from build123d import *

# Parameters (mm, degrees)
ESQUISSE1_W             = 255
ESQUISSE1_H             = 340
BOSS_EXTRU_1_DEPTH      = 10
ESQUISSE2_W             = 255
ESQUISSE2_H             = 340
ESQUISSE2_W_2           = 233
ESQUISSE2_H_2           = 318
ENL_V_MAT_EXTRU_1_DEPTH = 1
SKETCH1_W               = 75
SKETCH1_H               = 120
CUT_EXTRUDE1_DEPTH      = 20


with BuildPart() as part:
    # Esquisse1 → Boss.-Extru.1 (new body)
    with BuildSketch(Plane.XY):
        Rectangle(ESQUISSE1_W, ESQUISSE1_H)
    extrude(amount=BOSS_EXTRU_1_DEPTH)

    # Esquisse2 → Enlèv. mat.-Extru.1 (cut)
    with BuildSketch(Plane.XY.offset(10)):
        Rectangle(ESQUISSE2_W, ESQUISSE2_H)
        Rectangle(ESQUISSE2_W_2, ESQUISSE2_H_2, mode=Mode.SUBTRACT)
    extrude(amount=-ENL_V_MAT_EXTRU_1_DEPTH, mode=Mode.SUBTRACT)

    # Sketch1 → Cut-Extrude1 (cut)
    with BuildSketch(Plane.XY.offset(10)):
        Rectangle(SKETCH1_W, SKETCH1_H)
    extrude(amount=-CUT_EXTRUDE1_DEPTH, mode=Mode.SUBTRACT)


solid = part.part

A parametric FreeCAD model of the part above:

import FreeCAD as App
import Part
import Sketcher

doc = App.newDocument("Part")
params = doc.addObject("Spreadsheet::Sheet", "Params")
for row, (alias, value) in enumerate([
    ("sketch1_width", "255 mm"),
    ("sketch1_height", "340 mm"),
    ("pad1_length", "10 mm"),
    ("sketch2_width", "255 mm"),
    ("sketch2_width2", "233 mm"),
    ("sketch2_height", "340 mm"),
    ("sketch2_height2", "318 mm"),
    ("pocket1_length", "1 mm"),
    ("sketch3_width", "75 mm"),
    ("sketch3_height", "120 mm"),
    ("pocket2_length", "20 mm"),
], start=1):
    params.set(f"A{row}", alias)
    params.set(f"B{row}", "=" + value)
    params.setAlias(f"B{row}", alias)

body = doc.addObject("PartDesign::Body", "Body")

sketch1 = body.newObject("Sketcher::SketchObject", "Sketch")
sketch1.AttachmentSupport = (doc.getObject("XY_Plane"), [""])
sketch1.MapMode = "FlatFace"
sketch1.addGeometry([
    Part.LineSegment(App.Vector(-128, 170, 0), App.Vector(-128, -170, 0)),
    Part.LineSegment(App.Vector(-128, -170, 0), App.Vector(128, -170, 0)),
    Part.LineSegment(App.Vector(128, -170, 0), App.Vector(128, 170, 0)),
    Part.LineSegment(App.Vector(128, 170, 0), App.Vector(-128, 170, 0)),
], False)
sketch1.addConstraint([
    Sketcher.Constraint("Coincident", 0, 2, 1, 1),
    Sketcher.Constraint("Coincident", 1, 2, 2, 1),
    Sketcher.Constraint("Coincident", 2, 2, 3, 1),
    Sketcher.Constraint("Coincident", 3, 2, 0, 1),
    Sketcher.Constraint("Vertical", 0),
    Sketcher.Constraint("Horizontal", 1),
    Sketcher.Constraint("Vertical", 2),
    Sketcher.Constraint("Horizontal", 3),
    Sketcher.Constraint("Symmetric", 0, 2, 2, 2, -1, 1),
    Sketcher.Constraint("DistanceX", 1, 1, 1, 2, 255.0),
    Sketcher.Constraint("DistanceY", 0, 2, 0, 1, 340.0),
])
sketch1.setExpression("Constraints[9]", "Params.sketch1_width")
sketch1.setExpression("Constraints[10]", "Params.sketch1_height")
pad1 = body.newObject("PartDesign::Pad", "Pad")
pad1.Profile = sketch1
pad1.setExpression("Length", "Params.pad1_length")

sketch2 = body.newObject("Sketcher::SketchObject", "Sketch001")
sketch2.AttachmentSupport = (doc.getObject("XY_Plane"), [""])
sketch2.MapMode = "FlatFace"
sketch2.AttachmentOffset = App.Placement(App.Vector(0, 0, 10), App.Rotation())
sketch2.addGeometry([
    Part.LineSegment(App.Vector(-128, 170, 0), App.Vector(-128, -170, 0)),
    Part.LineSegment(App.Vector(-128, -170, 0), App.Vector(128, -170, 0)),
    Part.LineSegment(App.Vector(128, -170, 0), App.Vector(128, 170, 0)),
    Part.LineSegment(App.Vector(128, 170, 0), App.Vector(-128, 170, 0)),
    Part.LineSegment(App.Vector(116, -159, 0), App.Vector(-116, -159, 0)),
    Part.LineSegment(App.Vector(-116, -159, 0), App.Vector(-116, 159, 0)),
    Part.LineSegment(App.Vector(-116, 159, 0), App.Vector(116, 159, 0)),
    Part.LineSegment(App.Vector(116, 159, 0), App.Vector(116, -159, 0)),
], False)
sketch2.addConstraint([
    Sketcher.Constraint("Coincident", 0, 2, 1, 1),
    Sketcher.Constraint("Coincident", 1, 2, 2, 1),
    Sketcher.Constraint("Coincident", 2, 2, 3, 1),
    Sketcher.Constraint("Coincident", 3, 2, 0, 1),
    Sketcher.Constraint("Coincident", 4, 2, 5, 1),
    Sketcher.Constraint("Coincident", 5, 2, 6, 1),
    Sketcher.Constraint("Coincident", 6, 2, 7, 1),
    Sketcher.Constraint("Coincident", 7, 2, 4, 1),
    Sketcher.Constraint("Vertical", 0),
    Sketcher.Constraint("Horizontal", 1),
    Sketcher.Constraint("Vertical", 2),
    Sketcher.Constraint("Horizontal", 3),
    Sketcher.Constraint("Horizontal", 4),
    Sketcher.Constraint("Vertical", 5),
    Sketcher.Constraint("Horizontal", 6),
    Sketcher.Constraint("Vertical", 7),
    Sketcher.Constraint("Symmetric", 0, 2, 2, 2, -1, 1),
    Sketcher.Constraint("Symmetric", 4, 2, 6, 2, -1, 1),
    Sketcher.Constraint("DistanceX", 1, 1, 1, 2, 255.0),
    Sketcher.Constraint("DistanceX", 4, 2, 4, 1, 233.0),
    Sketcher.Constraint("DistanceY", 0, 2, 0, 1, 340.0),
    Sketcher.Constraint("DistanceY", 5, 1, 5, 2, 318.0),
])
sketch2.setExpression("Constraints[18]", "Params.sketch2_width")
sketch2.setExpression("Constraints[19]", "Params.sketch2_width2")
sketch2.setExpression("Constraints[20]", "Params.sketch2_height")
sketch2.setExpression("Constraints[21]", "Params.sketch2_height2")
pocket1 = body.newObject("PartDesign::Pocket", "Pocket")
pocket1.Profile = sketch2
pocket1.setExpression("Length", "Params.pocket1_length")

sketch3 = body.newObject("Sketcher::SketchObject", "Sketch002")
sketch3.AttachmentSupport = (doc.getObject("XY_Plane"), [""])
sketch3.MapMode = "FlatFace"
sketch3.AttachmentOffset = App.Placement(App.Vector(0, 0, 10), App.Rotation())
sketch3.addGeometry([
    Part.LineSegment(App.Vector(-38, 60, 0), App.Vector(-38, -60, 0)),
    Part.LineSegment(App.Vector(-38, -60, 0), App.Vector(38, -60, 0)),
    Part.LineSegment(App.Vector(38, -60, 0), App.Vector(38, 60, 0)),
    Part.LineSegment(App.Vector(38, 60, 0), App.Vector(-38, 60, 0)),
], False)
sketch3.addConstraint([
    Sketcher.Constraint("Coincident", 0, 2, 1, 1),
    Sketcher.Constraint("Coincident", 1, 2, 2, 1),
    Sketcher.Constraint("Coincident", 2, 2, 3, 1),
    Sketcher.Constraint("Coincident", 3, 2, 0, 1),
    Sketcher.Constraint("Vertical", 0),
    Sketcher.Constraint("Horizontal", 1),
    Sketcher.Constraint("Vertical", 2),
    Sketcher.Constraint("Horizontal", 3),
    Sketcher.Constraint("Symmetric", 0, 2, 2, 2, -1, 1),
    Sketcher.Constraint("DistanceX", 1, 1, 1, 2, 75.0),
    Sketcher.Constraint("DistanceY", 0, 2, 0, 1, 120.0),
])
sketch3.setExpression("Constraints[9]", "Params.sketch3_width")
sketch3.setExpression("Constraints[10]", "Params.sketch3_height")
pocket2 = body.newObject("PartDesign::Pocket", "Pocket001")
pocket2.Profile = sketch3
pocket2.setExpression("Length", "Params.pocket2_length")

doc.recompute()
